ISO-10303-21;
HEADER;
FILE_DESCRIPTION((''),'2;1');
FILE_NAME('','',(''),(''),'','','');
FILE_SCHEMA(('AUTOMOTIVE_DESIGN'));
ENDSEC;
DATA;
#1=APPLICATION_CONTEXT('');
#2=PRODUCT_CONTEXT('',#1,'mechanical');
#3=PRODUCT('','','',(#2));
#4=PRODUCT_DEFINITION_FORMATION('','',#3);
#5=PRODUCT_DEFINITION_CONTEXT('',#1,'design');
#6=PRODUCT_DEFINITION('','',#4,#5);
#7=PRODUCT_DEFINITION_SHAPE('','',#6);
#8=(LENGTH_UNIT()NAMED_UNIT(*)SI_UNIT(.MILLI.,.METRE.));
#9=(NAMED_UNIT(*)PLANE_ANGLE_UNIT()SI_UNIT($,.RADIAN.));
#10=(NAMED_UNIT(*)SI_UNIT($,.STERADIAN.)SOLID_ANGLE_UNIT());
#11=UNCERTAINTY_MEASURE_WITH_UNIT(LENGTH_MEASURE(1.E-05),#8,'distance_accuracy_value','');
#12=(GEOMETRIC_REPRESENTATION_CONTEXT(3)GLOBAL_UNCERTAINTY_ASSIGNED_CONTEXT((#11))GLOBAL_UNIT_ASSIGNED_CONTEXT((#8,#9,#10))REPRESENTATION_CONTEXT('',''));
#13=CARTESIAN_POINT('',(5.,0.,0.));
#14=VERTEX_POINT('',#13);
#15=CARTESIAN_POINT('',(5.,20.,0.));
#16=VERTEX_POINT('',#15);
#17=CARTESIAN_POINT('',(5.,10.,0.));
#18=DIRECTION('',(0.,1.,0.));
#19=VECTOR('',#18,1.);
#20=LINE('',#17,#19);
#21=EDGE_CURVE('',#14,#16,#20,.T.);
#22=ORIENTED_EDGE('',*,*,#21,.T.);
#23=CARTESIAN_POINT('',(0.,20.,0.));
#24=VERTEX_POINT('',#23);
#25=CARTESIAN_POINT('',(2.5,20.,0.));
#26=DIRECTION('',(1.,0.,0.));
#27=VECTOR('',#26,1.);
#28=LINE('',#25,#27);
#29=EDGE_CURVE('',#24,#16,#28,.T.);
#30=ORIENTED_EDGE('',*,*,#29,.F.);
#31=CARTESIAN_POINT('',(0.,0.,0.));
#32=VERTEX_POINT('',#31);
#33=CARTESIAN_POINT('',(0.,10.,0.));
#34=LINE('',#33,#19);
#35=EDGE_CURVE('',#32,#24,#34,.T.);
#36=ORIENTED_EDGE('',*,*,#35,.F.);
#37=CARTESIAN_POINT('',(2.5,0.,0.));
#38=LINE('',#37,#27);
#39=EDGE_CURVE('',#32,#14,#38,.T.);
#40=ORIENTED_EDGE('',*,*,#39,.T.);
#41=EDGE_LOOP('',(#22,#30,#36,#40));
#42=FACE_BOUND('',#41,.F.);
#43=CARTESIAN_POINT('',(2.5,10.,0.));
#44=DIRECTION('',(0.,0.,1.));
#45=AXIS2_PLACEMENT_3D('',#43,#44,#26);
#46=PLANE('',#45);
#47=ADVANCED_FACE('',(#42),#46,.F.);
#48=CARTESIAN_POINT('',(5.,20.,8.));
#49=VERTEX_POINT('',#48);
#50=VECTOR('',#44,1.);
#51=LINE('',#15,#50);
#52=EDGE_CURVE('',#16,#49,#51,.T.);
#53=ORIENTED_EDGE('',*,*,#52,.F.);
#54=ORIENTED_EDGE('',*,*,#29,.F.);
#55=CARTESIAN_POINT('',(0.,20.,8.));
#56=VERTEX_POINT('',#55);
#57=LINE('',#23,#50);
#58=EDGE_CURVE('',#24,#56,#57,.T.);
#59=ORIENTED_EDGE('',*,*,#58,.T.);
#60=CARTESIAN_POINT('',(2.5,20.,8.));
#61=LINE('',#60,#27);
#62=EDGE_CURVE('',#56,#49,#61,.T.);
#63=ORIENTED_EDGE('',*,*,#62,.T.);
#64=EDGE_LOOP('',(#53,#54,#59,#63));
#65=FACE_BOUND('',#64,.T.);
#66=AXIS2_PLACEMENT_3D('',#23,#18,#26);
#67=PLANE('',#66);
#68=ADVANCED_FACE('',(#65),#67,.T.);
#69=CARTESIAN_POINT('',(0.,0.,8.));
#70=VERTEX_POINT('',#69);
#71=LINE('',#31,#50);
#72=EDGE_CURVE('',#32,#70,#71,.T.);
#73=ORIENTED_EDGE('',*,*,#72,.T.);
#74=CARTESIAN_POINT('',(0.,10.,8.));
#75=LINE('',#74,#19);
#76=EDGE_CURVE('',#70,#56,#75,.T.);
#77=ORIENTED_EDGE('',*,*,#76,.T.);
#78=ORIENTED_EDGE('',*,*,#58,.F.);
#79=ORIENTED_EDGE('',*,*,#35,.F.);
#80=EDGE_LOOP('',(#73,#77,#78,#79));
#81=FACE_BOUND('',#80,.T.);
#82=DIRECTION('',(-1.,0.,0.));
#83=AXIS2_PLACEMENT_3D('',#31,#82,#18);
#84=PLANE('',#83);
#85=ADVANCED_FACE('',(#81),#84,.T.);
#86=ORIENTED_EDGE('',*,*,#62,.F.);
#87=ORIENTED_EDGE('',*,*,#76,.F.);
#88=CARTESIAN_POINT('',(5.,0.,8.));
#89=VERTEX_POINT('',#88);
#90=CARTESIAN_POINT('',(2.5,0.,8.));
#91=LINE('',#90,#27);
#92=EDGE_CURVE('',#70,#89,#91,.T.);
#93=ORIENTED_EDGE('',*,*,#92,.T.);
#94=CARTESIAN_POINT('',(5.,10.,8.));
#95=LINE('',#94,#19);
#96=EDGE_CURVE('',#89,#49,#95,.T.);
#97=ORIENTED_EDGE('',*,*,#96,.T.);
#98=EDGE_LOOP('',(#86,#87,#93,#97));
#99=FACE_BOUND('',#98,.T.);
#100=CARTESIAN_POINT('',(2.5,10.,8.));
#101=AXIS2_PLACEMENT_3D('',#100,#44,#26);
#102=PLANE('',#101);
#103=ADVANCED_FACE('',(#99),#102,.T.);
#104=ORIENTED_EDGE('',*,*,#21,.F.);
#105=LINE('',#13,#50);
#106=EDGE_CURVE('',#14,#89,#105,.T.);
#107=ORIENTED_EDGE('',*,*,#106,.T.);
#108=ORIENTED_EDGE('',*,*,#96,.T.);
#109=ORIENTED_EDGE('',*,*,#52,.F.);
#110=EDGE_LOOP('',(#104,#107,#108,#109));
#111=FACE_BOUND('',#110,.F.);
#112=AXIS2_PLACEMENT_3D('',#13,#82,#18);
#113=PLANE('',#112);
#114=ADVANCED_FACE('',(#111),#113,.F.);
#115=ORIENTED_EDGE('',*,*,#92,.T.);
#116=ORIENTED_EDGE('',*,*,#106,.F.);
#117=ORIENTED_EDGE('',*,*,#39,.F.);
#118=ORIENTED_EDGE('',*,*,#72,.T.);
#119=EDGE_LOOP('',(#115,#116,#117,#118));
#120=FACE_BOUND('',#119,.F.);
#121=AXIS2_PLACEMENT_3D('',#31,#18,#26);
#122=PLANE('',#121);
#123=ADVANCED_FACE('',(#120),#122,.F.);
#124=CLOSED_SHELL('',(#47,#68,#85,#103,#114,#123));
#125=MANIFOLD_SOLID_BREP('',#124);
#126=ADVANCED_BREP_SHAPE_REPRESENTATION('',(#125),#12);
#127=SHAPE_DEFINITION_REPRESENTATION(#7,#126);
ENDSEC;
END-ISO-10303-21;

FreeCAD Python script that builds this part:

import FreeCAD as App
import Part
import Sketcher

doc = App.newDocument("Part")
body = doc.addObject("PartDesign::Body", "Body")

sketch1 = body.newObject("Sketcher::SketchObject", "Sketch")
sketch1.AttachmentSupport = (doc.getObject("XY_Plane"), [""])
sketch1.MapMode = "FlatFace"
sketch1.addGeometry(Part.LineSegment(App.Vector(0, 20, 0), App.Vector(0, 0, 0)), False)
sketch1.addGeometry(Part.LineSegment(App.Vector(0, 0, 0), App.Vector(5, 0, 0)), False)
sketch1.addGeometry(Part.LineSegment(App.Vector(5, 0, 0), App.Vector(5, 20, 0)), False)
sketch1.addGeometry(Part.LineSegment(App.Vector(5, 20, 0), App.Vector(0, 20, 0)), False)
sketch1.addConstraint(Sketcher.Constraint("Coincident", 0, 2, 1, 1))
sketch1.addConstraint(Sketcher.Constraint("Coincident", 1, 2, 2, 1))
sketch1.addConstraint(Sketcher.Constraint("Coincident", 2, 2, 3, 1))
sketch1.addConstraint(Sketcher.Constraint("Coincident", 3, 2, 0, 1))
sketch1.addConstraint(Sketcher.Constraint("Vertical", 0))
sketch1.addConstraint(Sketcher.Constraint("Horizontal", 1))
sketch1.addConstraint(Sketcher.Constraint("Vertical", 2))
sketch1.addConstraint(Sketcher.Constraint("Horizontal", 3))
sketch1.addConstraint(Sketcher.Constraint("Coincident", 0, 2, -1, 1))
sketch1.addConstraint(Sketcher.Constraint("DistanceX", 1, 1, 1, 2, 5.0))
sketch1.addConstraint(Sketcher.Constraint("DistanceY", 0, 2, 0, 1, 20.0))
pad1 = body.newObject("PartDesign::Pad", "Pad")
pad1.Profile = sketch1
pad1.Length = 8

doc.recompute()
